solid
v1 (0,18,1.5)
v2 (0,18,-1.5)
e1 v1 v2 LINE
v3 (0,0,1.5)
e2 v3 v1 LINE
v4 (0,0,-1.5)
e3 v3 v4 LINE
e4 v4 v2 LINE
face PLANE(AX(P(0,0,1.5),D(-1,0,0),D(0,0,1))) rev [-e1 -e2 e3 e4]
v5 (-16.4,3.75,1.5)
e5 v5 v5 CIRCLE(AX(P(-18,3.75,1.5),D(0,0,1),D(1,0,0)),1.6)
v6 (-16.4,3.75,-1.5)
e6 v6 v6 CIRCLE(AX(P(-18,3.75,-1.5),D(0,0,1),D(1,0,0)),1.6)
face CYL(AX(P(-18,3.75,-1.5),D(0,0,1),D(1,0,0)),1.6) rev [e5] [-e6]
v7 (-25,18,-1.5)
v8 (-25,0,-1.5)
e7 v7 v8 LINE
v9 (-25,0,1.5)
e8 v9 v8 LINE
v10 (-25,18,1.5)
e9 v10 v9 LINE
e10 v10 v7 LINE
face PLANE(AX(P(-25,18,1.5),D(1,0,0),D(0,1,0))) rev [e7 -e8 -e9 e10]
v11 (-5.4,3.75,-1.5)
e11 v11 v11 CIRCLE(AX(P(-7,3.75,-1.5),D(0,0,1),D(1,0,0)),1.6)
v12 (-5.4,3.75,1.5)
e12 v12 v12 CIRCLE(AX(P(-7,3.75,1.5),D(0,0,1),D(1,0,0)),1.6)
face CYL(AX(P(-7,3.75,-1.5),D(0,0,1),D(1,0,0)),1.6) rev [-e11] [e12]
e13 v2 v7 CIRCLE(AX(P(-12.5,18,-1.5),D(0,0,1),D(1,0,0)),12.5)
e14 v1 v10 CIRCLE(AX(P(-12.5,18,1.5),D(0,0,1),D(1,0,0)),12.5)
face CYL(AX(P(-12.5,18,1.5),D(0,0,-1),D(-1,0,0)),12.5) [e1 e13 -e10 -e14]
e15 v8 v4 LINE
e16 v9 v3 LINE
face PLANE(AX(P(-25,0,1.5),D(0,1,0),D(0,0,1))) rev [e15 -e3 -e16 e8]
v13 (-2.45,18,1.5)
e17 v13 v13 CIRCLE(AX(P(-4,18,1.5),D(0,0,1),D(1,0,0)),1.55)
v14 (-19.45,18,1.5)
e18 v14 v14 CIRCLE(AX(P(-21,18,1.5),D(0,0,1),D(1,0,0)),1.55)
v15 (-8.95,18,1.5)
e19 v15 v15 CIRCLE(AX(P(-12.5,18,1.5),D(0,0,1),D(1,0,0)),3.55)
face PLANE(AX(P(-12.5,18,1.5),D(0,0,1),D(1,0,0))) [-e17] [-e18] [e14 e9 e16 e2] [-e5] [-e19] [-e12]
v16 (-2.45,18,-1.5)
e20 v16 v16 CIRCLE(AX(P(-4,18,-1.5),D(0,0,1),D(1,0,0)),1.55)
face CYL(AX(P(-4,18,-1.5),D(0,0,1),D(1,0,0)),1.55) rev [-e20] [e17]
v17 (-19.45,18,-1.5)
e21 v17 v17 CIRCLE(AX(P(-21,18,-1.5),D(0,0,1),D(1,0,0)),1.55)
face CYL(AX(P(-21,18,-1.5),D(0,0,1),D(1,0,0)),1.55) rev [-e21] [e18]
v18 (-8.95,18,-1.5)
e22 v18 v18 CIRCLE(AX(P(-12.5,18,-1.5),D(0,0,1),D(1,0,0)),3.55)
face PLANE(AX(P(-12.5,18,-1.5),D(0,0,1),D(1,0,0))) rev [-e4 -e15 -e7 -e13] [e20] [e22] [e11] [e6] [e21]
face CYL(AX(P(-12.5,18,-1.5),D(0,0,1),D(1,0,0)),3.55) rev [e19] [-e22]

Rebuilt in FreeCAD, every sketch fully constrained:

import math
import FreeCAD as App
import Part
import Sketcher

V = App.Vector

doc = App.newDocument("Part")
body = doc.addObject("PartDesign::Body", "Body")

# Sketch on XY plane
sketch1 = body.newObject("Sketcher::SketchObject", "Sketch")
sketch1.AttachmentSupport = (doc.getObject("XY_Plane"), [""])
sketch1.MapMode = "FlatFace"
sketch1.addGeometry(Part.LineSegment(V(-25, 0, 0), V(0, 0, 0)), False)
sketch1.addGeometry(Part.LineSegment(V(0, 0, 0), V(0, 18, 0)), False)
sketch1.addGeometry(Part.ArcOfCircle(Part.Circle(V(-12.5, 18, 0), V(0, 0, 1), 12.5), math.radians(0), math.radians(180)), False)
sketch1.addGeometry(Part.LineSegment(V(-25, 18, 0), V(-25, 0, 0)), False)
sketch1.addConstraint(Sketcher.Constraint("Coincident", 0, 2, 1, 1))
sketch1.addConstraint(Sketcher.Constraint("Tangent", 1, 2, 2, 1))
sketch1.addConstraint(Sketcher.Constraint("Tangent", 2, 2, 3, 1))
sketch1.addConstraint(Sketcher.Constraint("Coincident", 3, 2, 0, 1))
sketch1.addConstraint(Sketcher.Constraint("Horizontal", 0))
sketch1.addConstraint(Sketcher.Constraint("Vertical", 1))
sketch1.addConstraint(Sketcher.Constraint("Vertical", 3))
sketch1.addConstraint(Sketcher.Constraint("Coincident", 0, 2, -1, 1))
sketch1.addConstraint(Sketcher.Constraint("Radius", 2, 12.5))
sketch1.addConstraint(Sketcher.Constraint("DistanceY", 1, 1, 1, 2, 18.0))
pad1 = body.newObject("PartDesign::Pad", "Pad")
pad1.Profile = sketch1
pad1.Length = 3
pad1.Midplane = True

# Sketch on XY plane
sketch2 = body.newObject("Sketcher::SketchObject", "Sketch001")
sketch2.AttachmentSupport = (doc.getObject("XY_Plane"), [""])
sketch2.MapMode = "FlatFace"
sketch2.AttachmentOffset = App.Placement(V(0, 0, 1.5), App.Rotation())
sketch2.addGeometry(Part.Circle(V(-18, 3.75, 0), V(0, 0, 1), 1.6), False)
sketch2.addGeometry(Part.Circle(V(-7, 3.75, 0), V(0, 0, 1), 1.6), False)
sketch2.addConstraint(Sketcher.Constraint("Equal", 0, 1))
sketch2.addConstraint(Sketcher.Constraint("Horizontal", 0, 3, 1, 3))
sketch2.addConstraint(Sketcher.Constraint("Diameter", 0, 3.2))
sketch2.addConstraint(Sketcher.Constraint("DistanceX", 0, 3, -1, 1, 18.0))
sketch2.addConstraint(Sketcher.Constraint("DistanceX", 1, 3, -1, 1, 7.0))
sketch2.addConstraint(Sketcher.Constraint("DistanceY", -1, 1, 0, 3, 3.75))
pocket1 = body.newObject("PartDesign::Pocket", "Pocket")
pocket1.Profile = sketch2
pocket1.Length = 3

# Sketch on XY plane
sketch3 = body.newObject("Sketcher::SketchObject", "Sketch002")
sketch3.AttachmentSupport = (doc.getObject("XY_Plane"), [""])
sketch3.MapMode = "FlatFace"
sketch3.AttachmentOffset = App.Placement(V(0, 0, 1.5), App.Rotation())
sketch3.addGeometry(Part.Circle(V(-4, 18, 0), V(0, 0, 1), 1.55), False)
sketch3.addGeometry(Part.Circle(V(-21, 18, 0), V(0, 0, 1), 1.55), False)
sketch3.addGeometry(Part.Circle(V(-12.5, 18, 0), V(0, 0, 1), 3.55), False)
sketch3.addConstraint(Sketcher.Constraint("Equal", 0, 1))
sketch3.addConstraint(Sketcher.Constraint("Horizontal", 0, 3, 1, 3))
sketch3.addConstraint(Sketcher.Constraint("Horizontal", 1, 3, 2, 3))
sketch3.addConstraint(Sketcher.Constraint("Diameter", 0, 3.1))
sketch3.addConstraint(Sketcher.Constraint("Diameter", 2, 7.1))
sketch3.addConstraint(Sketcher.Constraint("DistanceX", 0, 3, -1, 1, 4.0))
sketch3.addConstraint(Sketcher.Constraint("DistanceY", -1, 1, 0, 3, 18.0))
sketch3.addConstraint(Sketcher.Constraint("DistanceX", 1, 3, -1, 1, 21.0))
sketch3.addConstraint(Sketcher.Constraint("DistanceX", 2, 3, -1, 1, 12.5))
pocket2 = body.newObject("PartDesign::Pocket", "Pocket001")
pocket2.Profile = sketch3
pocket2.Length = 3

doc.recompute()
